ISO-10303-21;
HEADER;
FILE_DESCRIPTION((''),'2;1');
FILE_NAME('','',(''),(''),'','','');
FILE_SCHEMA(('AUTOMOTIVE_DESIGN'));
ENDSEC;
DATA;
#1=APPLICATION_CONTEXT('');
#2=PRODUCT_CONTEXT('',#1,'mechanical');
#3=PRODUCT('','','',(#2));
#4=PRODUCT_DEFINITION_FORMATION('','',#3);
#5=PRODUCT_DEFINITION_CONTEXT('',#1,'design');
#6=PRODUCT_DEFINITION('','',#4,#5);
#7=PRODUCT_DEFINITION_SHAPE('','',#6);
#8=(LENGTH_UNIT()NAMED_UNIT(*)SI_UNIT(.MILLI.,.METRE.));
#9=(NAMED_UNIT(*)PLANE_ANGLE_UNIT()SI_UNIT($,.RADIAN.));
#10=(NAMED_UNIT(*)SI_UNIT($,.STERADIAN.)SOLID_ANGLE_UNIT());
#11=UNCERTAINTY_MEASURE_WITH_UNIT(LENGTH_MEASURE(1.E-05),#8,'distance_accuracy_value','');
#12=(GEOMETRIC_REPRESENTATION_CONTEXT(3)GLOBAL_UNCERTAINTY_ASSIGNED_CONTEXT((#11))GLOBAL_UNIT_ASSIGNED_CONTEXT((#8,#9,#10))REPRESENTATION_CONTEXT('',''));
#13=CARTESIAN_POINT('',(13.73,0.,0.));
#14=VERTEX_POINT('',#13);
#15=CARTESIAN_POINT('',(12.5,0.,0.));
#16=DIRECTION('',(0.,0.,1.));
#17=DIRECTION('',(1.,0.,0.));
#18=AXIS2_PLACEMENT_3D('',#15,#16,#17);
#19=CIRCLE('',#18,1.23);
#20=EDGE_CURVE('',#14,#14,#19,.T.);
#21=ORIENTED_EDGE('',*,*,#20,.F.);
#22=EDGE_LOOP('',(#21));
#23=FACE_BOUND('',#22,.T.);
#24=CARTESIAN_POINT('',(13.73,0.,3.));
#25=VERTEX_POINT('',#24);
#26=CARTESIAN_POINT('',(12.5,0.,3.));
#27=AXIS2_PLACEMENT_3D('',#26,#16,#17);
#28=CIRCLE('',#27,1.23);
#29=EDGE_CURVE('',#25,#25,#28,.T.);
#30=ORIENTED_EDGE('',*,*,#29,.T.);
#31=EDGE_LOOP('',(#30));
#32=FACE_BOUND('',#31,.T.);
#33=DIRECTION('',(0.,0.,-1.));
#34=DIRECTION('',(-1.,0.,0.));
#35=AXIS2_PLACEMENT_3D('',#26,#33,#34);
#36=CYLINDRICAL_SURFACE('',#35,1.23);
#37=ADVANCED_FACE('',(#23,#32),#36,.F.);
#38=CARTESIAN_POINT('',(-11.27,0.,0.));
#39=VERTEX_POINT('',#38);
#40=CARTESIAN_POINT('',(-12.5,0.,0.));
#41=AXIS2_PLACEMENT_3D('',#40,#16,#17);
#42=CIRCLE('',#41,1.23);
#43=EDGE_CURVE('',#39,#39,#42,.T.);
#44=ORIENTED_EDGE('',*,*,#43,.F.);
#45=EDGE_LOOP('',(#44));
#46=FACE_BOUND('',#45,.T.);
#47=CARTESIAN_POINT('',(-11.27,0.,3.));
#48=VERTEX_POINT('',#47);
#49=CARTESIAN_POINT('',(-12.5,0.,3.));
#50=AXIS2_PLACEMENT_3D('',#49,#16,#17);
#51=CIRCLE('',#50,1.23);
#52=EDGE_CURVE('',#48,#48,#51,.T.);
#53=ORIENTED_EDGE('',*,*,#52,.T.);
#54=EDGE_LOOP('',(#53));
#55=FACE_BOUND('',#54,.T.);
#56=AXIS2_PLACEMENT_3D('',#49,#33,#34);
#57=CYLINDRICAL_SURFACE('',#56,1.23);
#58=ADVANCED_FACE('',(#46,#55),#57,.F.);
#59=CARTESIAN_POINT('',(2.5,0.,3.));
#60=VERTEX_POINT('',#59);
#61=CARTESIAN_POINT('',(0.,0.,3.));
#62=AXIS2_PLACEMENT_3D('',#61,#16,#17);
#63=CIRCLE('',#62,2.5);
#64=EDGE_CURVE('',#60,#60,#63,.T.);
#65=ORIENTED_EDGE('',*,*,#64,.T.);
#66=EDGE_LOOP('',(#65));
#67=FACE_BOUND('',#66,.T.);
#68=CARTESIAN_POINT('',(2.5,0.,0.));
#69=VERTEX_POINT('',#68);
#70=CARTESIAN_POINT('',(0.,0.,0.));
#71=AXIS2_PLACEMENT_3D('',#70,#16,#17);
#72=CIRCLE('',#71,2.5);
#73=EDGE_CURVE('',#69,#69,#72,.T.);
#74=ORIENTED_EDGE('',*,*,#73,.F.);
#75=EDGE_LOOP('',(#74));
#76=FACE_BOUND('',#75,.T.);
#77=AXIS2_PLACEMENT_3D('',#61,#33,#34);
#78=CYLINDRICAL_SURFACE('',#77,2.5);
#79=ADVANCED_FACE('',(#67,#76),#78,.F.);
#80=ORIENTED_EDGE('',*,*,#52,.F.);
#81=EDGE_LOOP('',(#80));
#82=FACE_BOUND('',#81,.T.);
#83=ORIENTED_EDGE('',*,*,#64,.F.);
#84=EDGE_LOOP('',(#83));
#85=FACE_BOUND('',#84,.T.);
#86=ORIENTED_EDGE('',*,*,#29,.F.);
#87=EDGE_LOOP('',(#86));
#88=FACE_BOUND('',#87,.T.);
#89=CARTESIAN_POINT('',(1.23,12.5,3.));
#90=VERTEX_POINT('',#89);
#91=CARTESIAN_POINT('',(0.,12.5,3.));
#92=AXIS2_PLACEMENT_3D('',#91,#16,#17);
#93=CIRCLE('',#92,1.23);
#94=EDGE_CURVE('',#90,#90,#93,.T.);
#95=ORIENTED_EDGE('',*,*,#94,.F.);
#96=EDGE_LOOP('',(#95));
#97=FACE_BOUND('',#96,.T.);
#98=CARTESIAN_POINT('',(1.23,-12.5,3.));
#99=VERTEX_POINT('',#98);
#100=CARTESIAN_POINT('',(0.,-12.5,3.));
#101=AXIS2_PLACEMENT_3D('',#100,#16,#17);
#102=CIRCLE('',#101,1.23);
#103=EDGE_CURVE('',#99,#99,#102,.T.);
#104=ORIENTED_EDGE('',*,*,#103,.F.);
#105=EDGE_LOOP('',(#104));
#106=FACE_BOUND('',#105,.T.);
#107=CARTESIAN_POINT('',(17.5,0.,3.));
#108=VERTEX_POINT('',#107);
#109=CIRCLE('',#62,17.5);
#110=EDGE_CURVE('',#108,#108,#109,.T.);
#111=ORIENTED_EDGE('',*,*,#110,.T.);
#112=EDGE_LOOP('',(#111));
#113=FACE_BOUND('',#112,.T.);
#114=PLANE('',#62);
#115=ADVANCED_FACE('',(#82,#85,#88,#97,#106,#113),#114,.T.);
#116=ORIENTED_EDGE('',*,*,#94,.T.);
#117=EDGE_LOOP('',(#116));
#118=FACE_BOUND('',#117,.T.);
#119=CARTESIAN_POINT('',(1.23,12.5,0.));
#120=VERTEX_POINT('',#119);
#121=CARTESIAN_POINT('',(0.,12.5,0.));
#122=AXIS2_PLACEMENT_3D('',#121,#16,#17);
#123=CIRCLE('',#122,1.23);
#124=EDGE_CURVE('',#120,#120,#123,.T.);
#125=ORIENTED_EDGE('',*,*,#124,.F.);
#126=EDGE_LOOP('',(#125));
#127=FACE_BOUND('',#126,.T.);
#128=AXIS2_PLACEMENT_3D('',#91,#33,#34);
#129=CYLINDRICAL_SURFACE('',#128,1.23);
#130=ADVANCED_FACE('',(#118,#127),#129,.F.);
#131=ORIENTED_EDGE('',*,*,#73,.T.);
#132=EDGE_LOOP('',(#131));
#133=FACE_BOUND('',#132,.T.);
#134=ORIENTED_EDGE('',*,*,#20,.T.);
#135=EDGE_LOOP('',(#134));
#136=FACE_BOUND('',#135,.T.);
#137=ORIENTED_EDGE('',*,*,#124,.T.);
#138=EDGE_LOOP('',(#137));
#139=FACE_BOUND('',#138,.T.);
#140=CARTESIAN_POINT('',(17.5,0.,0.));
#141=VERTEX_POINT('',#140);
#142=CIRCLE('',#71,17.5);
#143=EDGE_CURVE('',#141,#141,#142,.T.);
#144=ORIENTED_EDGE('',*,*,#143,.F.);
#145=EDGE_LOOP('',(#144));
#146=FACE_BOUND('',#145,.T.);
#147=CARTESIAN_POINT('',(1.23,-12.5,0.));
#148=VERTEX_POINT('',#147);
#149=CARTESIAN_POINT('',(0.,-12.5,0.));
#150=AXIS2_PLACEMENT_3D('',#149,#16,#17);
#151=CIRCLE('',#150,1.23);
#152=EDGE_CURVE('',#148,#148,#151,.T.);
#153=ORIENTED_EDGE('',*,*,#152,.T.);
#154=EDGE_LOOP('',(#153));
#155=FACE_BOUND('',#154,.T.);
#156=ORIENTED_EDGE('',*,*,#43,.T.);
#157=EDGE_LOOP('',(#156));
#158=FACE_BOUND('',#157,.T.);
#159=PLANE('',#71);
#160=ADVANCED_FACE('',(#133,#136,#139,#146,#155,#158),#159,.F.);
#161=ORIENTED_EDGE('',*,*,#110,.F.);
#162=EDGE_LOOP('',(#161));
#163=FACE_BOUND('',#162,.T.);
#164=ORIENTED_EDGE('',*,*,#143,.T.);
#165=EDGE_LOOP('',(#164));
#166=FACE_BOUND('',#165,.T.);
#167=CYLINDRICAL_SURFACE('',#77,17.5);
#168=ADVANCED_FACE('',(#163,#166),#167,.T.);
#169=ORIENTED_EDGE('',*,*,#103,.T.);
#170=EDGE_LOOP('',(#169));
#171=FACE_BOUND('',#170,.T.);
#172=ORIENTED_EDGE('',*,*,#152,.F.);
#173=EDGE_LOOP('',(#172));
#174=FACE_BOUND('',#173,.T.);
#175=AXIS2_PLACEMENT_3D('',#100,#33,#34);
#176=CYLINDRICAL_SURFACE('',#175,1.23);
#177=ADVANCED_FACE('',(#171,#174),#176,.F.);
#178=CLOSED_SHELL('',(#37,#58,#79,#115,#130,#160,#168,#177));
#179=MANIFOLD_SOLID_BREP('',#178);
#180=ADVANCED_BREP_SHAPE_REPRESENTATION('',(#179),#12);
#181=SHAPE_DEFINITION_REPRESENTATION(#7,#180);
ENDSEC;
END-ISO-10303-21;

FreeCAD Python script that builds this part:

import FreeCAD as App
import Part
import Sketcher

doc = App.newDocument("Part")
body = doc.addObject("PartDesign::Body", "Body")

sketch1 = body.newObject("Sketcher::SketchObject", "Sketch")
sketch1.AttachmentSupport = (doc.getObject("XY_Plane"), [""])
sketch1.MapMode = "FlatFace"
sketch1.addGeometry(Part.Circle(App.Vector(0, 0, 0), App.Vector(0, 0, 1), 17.5), False)
sketch1.addGeometry(Part.Circle(App.Vector(0, -12.5, 0), App.Vector(0, 0, 1), 1.2), False)
sketch1.addGeometry(Part.Circle(App.Vector(-12.5, 0, 0), App.Vector(0, 0, 1), 1.2), False)
sketch1.addGeometry(Part.Circle(App.Vector(0, 0, 0), App.Vector(0, 0, 1), 2.5), False)
sketch1.addGeometry(Part.Circle(App.Vector(12.5, 0, 0), App.Vector(0, 0, 1), 1.2), False)
sketch1.addGeometry(Part.Circle(App.Vector(0, 12.5, 0), App.Vector(0, 0, 1), 1.2), False)
sketch1.addConstraint(Sketcher.Constraint("Coincident", 0, 3, -1, 1))
sketch1.addConstraint(Sketcher.Constraint("Coincident", 3, 3, -1, 1))
sketch1.addConstraint(Sketcher.Constraint("Equal", 1, 2))
sketch1.addConstraint(Sketcher.Constraint("Equal", 2, 4))
sketch1.addConstraint(Sketcher.Constraint("Equal", 4, 5))
sketch1.addConstraint(Sketcher.Constraint("Symmetric", 2, 3, 4, 3, -1, 1))
sketch1.addConstraint(Sketcher.Constraint("Symmetric", 1, 3, 5, 3, -1, 1))
sketch1.addConstraint(Sketcher.Constraint("PointOnObject", 1, 3, -2))
sketch1.addConstraint(Sketcher.Constraint("PointOnObject", 2, 3, -1))
sketch1.addConstraint(Sketcher.Constraint("Diameter", 0, 35.0))
sketch1.addConstraint(Sketcher.Constraint("Diameter", 3, 5.0))
sketch1.addConstraint(Sketcher.Constraint("Diameter", 1, 2.46))
sketch1.addConstraint(Sketcher.Constraint("DistanceX", 2, 3, 4, 3, 25.0))
sketch1.addConstraint(Sketcher.Constraint("DistanceY", 1, 3, 5, 3, 25.0))
pad1 = body.newObject("PartDesign::Pad", "Pad")
pad1.Profile = sketch1
pad1.Length = 3

doc.recompute()
